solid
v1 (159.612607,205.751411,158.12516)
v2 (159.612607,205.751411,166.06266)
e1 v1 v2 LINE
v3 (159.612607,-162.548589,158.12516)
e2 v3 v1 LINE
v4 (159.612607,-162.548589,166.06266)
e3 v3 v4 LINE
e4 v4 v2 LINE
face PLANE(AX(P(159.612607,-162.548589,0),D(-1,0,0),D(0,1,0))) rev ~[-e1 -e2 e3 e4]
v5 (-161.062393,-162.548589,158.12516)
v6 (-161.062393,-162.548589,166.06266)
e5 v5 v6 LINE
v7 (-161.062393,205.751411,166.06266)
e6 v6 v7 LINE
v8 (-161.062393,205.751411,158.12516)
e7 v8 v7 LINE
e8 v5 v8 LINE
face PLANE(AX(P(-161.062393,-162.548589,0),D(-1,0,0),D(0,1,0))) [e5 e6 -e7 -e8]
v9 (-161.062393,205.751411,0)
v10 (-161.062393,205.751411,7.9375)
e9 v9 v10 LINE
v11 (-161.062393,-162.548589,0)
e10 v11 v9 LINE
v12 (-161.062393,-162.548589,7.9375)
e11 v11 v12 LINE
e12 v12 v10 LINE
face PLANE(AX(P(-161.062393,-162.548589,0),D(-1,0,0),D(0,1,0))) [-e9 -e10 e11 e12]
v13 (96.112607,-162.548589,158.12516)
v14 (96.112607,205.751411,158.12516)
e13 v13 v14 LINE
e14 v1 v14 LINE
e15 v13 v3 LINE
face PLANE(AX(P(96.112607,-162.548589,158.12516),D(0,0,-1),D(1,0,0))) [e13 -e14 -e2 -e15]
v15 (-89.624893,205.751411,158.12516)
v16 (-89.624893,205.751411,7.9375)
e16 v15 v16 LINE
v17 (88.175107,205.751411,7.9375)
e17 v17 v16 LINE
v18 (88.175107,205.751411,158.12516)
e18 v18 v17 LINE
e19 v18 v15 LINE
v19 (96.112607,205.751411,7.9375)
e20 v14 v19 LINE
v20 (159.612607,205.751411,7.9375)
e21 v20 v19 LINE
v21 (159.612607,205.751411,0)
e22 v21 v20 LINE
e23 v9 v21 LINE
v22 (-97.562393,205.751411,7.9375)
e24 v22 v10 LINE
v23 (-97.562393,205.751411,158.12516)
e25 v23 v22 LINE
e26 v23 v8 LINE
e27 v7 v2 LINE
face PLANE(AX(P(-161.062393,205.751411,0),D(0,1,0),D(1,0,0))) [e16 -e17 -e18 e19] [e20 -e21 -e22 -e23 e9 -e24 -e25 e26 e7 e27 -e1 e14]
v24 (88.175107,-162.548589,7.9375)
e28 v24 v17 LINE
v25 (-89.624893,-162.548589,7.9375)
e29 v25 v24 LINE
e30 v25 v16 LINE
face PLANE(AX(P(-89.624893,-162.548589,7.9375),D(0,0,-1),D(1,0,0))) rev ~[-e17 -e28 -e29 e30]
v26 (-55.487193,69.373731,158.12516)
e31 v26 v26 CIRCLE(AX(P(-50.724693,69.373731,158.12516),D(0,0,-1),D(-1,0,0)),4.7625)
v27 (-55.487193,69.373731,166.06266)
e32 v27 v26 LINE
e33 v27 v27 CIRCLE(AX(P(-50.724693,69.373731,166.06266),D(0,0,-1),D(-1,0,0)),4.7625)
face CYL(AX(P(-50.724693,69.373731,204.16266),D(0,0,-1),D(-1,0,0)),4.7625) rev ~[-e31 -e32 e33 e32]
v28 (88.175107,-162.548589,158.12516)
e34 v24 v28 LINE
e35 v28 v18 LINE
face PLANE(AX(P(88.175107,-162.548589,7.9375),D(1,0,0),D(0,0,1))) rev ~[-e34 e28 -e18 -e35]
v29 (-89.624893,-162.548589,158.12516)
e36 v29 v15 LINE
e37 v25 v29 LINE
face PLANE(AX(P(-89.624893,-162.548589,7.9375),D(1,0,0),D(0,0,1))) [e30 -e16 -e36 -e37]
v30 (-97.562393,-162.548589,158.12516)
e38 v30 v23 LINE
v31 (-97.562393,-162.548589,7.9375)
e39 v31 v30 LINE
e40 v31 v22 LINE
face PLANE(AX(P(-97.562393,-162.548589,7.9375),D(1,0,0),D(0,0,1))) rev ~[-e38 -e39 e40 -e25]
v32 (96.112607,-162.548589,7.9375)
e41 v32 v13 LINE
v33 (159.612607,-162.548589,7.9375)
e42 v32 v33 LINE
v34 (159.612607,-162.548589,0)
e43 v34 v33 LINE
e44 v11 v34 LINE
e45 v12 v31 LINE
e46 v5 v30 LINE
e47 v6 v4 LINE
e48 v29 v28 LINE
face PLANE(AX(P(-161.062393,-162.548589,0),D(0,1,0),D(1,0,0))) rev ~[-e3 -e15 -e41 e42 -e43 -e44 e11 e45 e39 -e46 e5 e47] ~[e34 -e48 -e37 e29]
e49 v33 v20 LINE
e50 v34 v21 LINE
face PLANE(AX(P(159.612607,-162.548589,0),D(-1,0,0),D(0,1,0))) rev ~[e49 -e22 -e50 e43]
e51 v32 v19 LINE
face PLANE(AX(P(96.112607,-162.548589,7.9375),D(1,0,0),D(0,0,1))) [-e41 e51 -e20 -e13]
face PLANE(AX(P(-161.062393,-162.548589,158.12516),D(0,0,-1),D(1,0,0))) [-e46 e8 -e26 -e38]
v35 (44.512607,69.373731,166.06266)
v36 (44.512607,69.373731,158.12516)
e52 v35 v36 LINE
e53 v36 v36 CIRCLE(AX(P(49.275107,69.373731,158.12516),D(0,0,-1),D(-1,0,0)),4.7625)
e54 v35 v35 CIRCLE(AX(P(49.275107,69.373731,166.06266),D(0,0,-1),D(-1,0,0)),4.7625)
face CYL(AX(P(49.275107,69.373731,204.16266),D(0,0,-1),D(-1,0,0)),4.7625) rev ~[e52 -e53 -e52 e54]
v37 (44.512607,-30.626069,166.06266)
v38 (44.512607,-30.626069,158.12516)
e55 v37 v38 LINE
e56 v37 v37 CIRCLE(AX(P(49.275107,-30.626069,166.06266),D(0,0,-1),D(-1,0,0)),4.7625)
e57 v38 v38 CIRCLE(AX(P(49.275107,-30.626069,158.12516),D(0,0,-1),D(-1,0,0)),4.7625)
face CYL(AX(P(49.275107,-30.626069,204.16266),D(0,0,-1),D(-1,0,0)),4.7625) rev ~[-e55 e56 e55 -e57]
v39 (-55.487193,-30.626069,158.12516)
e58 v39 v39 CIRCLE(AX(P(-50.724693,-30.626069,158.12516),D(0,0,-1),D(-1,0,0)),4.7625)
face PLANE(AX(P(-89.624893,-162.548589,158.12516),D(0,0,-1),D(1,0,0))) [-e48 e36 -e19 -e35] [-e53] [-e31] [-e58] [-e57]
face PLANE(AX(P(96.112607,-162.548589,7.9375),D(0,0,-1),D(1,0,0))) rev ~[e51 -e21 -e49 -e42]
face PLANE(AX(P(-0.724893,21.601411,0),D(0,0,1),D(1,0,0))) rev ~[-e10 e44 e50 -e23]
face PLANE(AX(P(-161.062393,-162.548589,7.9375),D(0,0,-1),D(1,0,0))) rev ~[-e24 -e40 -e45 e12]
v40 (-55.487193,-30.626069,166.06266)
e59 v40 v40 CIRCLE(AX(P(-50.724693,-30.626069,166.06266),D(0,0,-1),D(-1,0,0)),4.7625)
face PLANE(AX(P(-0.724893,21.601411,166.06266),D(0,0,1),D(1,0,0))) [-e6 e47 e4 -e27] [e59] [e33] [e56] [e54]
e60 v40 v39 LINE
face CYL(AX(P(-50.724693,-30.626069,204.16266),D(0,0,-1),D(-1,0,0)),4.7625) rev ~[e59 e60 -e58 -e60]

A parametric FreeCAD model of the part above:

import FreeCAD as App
import Part
import Sketcher

V = App.Vector
Q = App.Units.Quantity

doc = App.newDocument("Part")
body = doc.addObject("PartDesign::Body", "Body")

# Sketch on XY plane
sketch1 = doc.addObject("Sketcher::SketchObject", "Sketch")
body.addObject(sketch1)
sketch1.AttachmentSupport = (doc.XY_Plane, [""])
sketch1.MapMode = "FlatFace"
sketch1.addGeometry(Part.LineSegment(V(-161.062393, 205.751411, 0), V(-161.062393, -162.548589, 0)), False)
sketch1.addGeometry(Part.LineSegment(V(-161.062393, -162.548589, 0), V(159.612607, -162.548589, 0)), False)
sketch1.addGeometry(Part.LineSegment(V(159.612607, -162.548589, 0), V(159.612607, 205.751411, 0)), False)
sketch1.addGeometry(Part.LineSegment(V(159.612607, 205.751411, 0), V(-161.062393, 205.751411, 0)), False)
sketch1.addConstraint(Sketcher.Constraint("Coincident", 0, 2, 1, 1))
sketch1.addConstraint(Sketcher.Constraint("Coincident", 1, 2, 2, 1))
sketch1.addConstraint(Sketcher.Constraint("Coincident", 2, 2, 3, 1))
sketch1.addConstraint(Sketcher.Constraint("Coincident", 3, 2, 0, 1))
sketch1.addConstraint(Sketcher.Constraint("Vertical", 0))
sketch1.addConstraint(Sketcher.Constraint("Horizontal", 1))
sketch1.addConstraint(Sketcher.Constraint("Vertical", 2))
sketch1.addConstraint(Sketcher.Constraint("Horizontal", 3))
sketch1.addConstraint(Sketcher.Constraint("DistanceY", 0, 2, 0, 1, Q("14.5 in")))
sketch1.addConstraint(Sketcher.Constraint("DistanceX", 1, 1, 1, 2, Q("12.625 in")))
sketch1.addConstraint(Sketcher.Constraint("DistanceY", 0, 2, -1, 1, Q("162.548589 mm")))
sketch1.addConstraint(Sketcher.Constraint("DistanceX", 0, 2, -1, 1, Q("161.062393 mm")))
pad1 = doc.addObject("PartDesign::Pad", "Pad")
body.addObject(pad1)
pad1.Profile = sketch1
pad1.Length = Q("6.5379 in")

# Sketch on XY plane
sketch2 = doc.addObject("Sketcher::SketchObject", "Sketch001")
body.addObject(sketch2)
sketch2.AttachmentSupport = (doc.XY_Plane, [""])
sketch2.MapMode = "FlatFace"
sketch2.AttachmentOffset = App.Placement(V(0, 0, 6.5379 * 25.4), App.Rotation())
sketch2.addGeometry(Part.Circle(V(-50.724693, 69.373731, 0), V(0, 0, 1), 4.7625), False)
sketch2.addGeometry(Part.Circle(V(49.275107, 69.373731, 0), V(0, 0, 1), 4.7625), False)
sketch2.addGeometry(Part.Circle(V(49.275107, -30.626069, 0), V(0, 0, 1), 4.7625), False)
sketch2.addGeometry(Part.Circle(V(-50.724693, -30.626069, 0), V(0, 0, 1), 4.7625), False)
sketch2.addConstraint(Sketcher.Constraint("Equal", 0, 1))
sketch2.addConstraint(Sketcher.Constraint("Equal", 1, 2))
sketch2.addConstraint(Sketcher.Constraint("Equal", 2, 3))
sketch2.addConstraint(Sketcher.Constraint("Horizontal", 0, 3, 1, 3))
sketch2.addConstraint(Sketcher.Constraint("Horizontal", 2, 3, 3, 3))
sketch2.addConstraint(Sketcher.Constraint("Vertical", 1, 3, 2, 3))
sketch2.addConstraint(Sketcher.Constraint("Vertical", 0, 3, 3, 3))
sketch2.addConstraint(Sketcher.Constraint("Diameter", 0, Q("0.375 in")))
sketch2.addConstraint(Sketcher.Constraint("DistanceX", 0, 3, 1, 3, Q("3.937 in")))
sketch2.addConstraint(Sketcher.Constraint("DistanceY", 2, 3, 1, 3, Q("3.937 in")))
sketch2.addConstraint(Sketcher.Constraint("DistanceY", -1, 1, 0, 3, Q("69.373731 mm")))
sketch2.addConstraint(Sketcher.Constraint("DistanceX", 0, 3, -1, 1, Q("50.724693 mm")))
doc.recompute()
hole = doc.addObject("PartDesign::Hole", "Hole")
body.addObject(hole)
hole.Profile = sketch2
hole.ThreadType = "None"
hole.Diameter = Q("0.375 in")
hole.DepthType = "Dimension"
hole.Depth = Q("1.5 in")
hole.DrillPoint = "Flat"

# Sketch on XZ plane
sketch3 = doc.addObject("Sketcher::SketchObject", "Sketch002")
body.addObject(sketch3)
sketch3.AttachmentSupport = (doc.XZ_Plane, [""])
sketch3.MapMode = "FlatFace"
sketch3.AttachmentOffset = App.Placement(V(0, 0, 162.548589), App.Rotation())
sketch3.addGeometry(Part.LineSegment(V(-161.062393, 158.12516, 0), V(-161.062393, 7.9375, 0)), False)
sketch3.addGeometry(Part.LineSegment(V(-161.062393, 7.9375, 0), V(-97.562393, 7.9375, 0)), False)
sketch3.addGeometry(Part.LineSegment(V(-97.562393, 7.9375, 0), V(-97.562393, 158.12516, 0)), False)
sketch3.addGeometry(Part.LineSegment(V(-97.562393, 158.12516, 0), V(-161.062393, 158.12516, 0)), False)
sketch3.addGeometry(Part.LineSegment(V(96.112607, 158.12516, 0), V(96.112607, 7.9375, 0)), False)
sketch3.addGeometry(Part.LineSegment(V(96.112607, 7.9375, 0), V(159.612607, 7.9375, 0)), False)
sketch3.addGeometry(Part.LineSegment(V(159.612607, 7.9375, 0), V(159.612607, 158.12516, 0)), False)
sketch3.addGeometry(Part.LineSegment(V(159.612607, 158.12516, 0), V(96.112607, 158.12516, 0)), False)
sketch3.addGeometry(Part.LineSegment(V(-89.624893, 158.12516, 0), V(-89.624893, 7.9375, 0)), False)
sketch3.addGeometry(Part.LineSegment(V(-89.624893, 7.9375, 0), V(88.175107, 7.9375, 0)), False)
sketch3.addGeometry(Part.LineSegment(V(88.175107, 7.9375, 0), V(88.175107, 158.12516, 0)), False)
sketch3.addGeometry(Part.LineSegment(V(88.175107, 158.12516, 0), V(-89.624893, 158.12516, 0)), False)
sketch3.addConstraint(Sketcher.Constraint("Coincident", 0, 2, 1, 1))
sketch3.addConstraint(Sketcher.Constraint("Coincident", 1, 2, 2, 1))
sketch3.addConstraint(Sketcher.Constraint("Coincident", 2, 2, 3, 1))
sketch3.addConstraint(Sketcher.Constraint("Coincident", 3, 2, 0, 1))
sketch3.addConstraint(Sketcher.Constraint("Coincident", 4, 2, 5, 1))
sketch3.addConstraint(Sketcher.Constraint("Coincident", 5, 2, 6, 1))
sketch3.addConstraint(Sketcher.Constraint("Coincident", 6, 2, 7, 1))
sketch3.addConstraint(Sketcher.Constraint("Coincident", 7, 2, 4, 1))
sketch3.addConstraint(Sketcher.Constraint("Coincident", 8, 2, 9, 1))
sketch3.addConstraint(Sketcher.Constraint("Coincident", 9, 2, 10, 1))
sketch3.addConstraint(Sketcher.Constraint("Coincident", 10, 2, 11, 1))
sketch3.addConstraint(Sketcher.Constraint("Coincident", 11, 2, 8, 1))
sketch3.addConstraint(Sketcher.Constraint("Vertical", 0))
sketch3.addConstraint(Sketcher.Constraint("Horizontal", 1))
sketch3.addConstraint(Sketcher.Constraint("Vertical", 2))
sketch3.addConstraint(Sketcher.Constraint("Horizontal", 3))
sketch3.addConstraint(Sketcher.Constraint("Vertical", 4))
sketch3.addConstraint(Sketcher.Constraint("Horizontal", 5))
sketch3.addConstraint(Sketcher.Constraint("Vertical", 6))
sketch3.addConstraint(Sketcher.Constraint("Horizontal", 7))
sketch3.addConstraint(Sketcher.Constraint("Vertical", 8))
sketch3.addConstraint(Sketcher.Constraint("Horizontal", 9))
sketch3.addConstraint(Sketcher.Constraint("Vertical", 10))
sketch3.addConstraint(Sketcher.Constraint("Horizontal", 11))
sketch3.addConstraint(Sketcher.Constraint("Horizontal", 1, 2, 4, 2))
sketch3.addConstraint(Sketcher.Constraint("Horizontal", 3, 2, 6, 2))
sketch3.addConstraint(Sketcher.Constraint("Horizontal", 5, 2, 8, 2))
sketch3.addConstraint(Sketcher.Constraint("Horizontal", 7, 2, 10, 2))
sketch3.addConstraint(Sketcher.Constraint("Equal", 3, 5))
sketch3.addConstraint(Sketcher.Constraint("DistanceX", 9, 1, 9, 2, Q("7 in")))
sketch3.addConstraint(Sketcher.Constraint("DistanceX", 1, 1, 1, 2, Q("2.5 in")))
sketch3.addConstraint(Sketcher.Constraint("DistanceY", 0, 2, 0, 1, Q("5.9129 in")))
sketch3.addConstraint(Sketcher.Constraint("DistanceY", -1, 1, 0, 2, Q("0.3125 in")))
sketch3.addConstraint(Sketcher.Constraint("DistanceX", 1, 2, 4, 2, Q("7.625 in")))
sketch3.addConstraint(Sketcher.Constraint("DistanceX", 1, 2, 8, 2, Q("0.3125 in")))
sketch3.addConstraint(Sketcher.Constraint("DistanceX", 0, 2, -1, 1, Q("161.062393 mm")))
pocket1 = doc.addObject("PartDesign::Pocket", "Pocket")
body.addObject(pocket1)
pocket1.Profile = sketch3
pocket1.Type = "ThroughAll"

doc.recompute()
